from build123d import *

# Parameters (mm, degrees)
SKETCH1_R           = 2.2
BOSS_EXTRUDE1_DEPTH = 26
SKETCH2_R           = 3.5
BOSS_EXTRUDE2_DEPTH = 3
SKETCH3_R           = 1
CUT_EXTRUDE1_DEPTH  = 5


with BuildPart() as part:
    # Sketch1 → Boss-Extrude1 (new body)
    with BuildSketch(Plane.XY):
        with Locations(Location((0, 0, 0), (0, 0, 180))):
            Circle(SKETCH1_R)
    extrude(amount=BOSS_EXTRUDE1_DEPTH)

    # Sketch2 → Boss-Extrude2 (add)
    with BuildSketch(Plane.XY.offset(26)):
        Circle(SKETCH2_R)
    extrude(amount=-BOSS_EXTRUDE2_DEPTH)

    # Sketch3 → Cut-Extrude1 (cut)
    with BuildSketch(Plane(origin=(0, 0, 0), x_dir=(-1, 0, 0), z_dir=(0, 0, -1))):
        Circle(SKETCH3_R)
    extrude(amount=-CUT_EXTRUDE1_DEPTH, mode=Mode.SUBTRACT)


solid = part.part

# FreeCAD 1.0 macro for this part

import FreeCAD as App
import Part
import Sketcher

V = App.Vector
Q = App.Units.Quantity

doc = App.newDocument("Part")
params = doc.addObject("Spreadsheet::Sheet", "Params")
for row, (alias, value) in enumerate([
    ("sketch1_diameter", "4.4 mm"),
    ("pad1_length", "26 mm"),
    ("sketch2_diameter", "7 mm"),
    ("pad2_length", "3 mm"),
    ("sketch3_diameter", "2 mm"),
    ("pocket1_length", "5 mm"),
], start=1):
    params.set(f"A{row}", alias)
    params.set(f"B{row}", "=" + value)
    params.setAlias(f"B{row}", alias)

body = doc.addObject("PartDesign::Body", "Body")

sketch1 = body.newObject("Sketcher::SketchObject", "Sketch")
sketch1.AttachmentSupport = (doc.getObject("XY_Plane"), [""])
sketch1.MapMode = "FlatFace"
sketch1.addGeometry(Part.Circle(V(0, 0, 0), V(0, 0, 1), 2.2), False)
sketch1.addConstraint(Sketcher.Constraint("Coincident", 0, 3, -1, 1))
sketch1.addConstraint(Sketcher.Constraint("Diameter", 0, Q("4.4 mm")))
sketch1.setExpression("Constraints[1]", "Params.sketch1_diameter")
pad1 = body.newObject("PartDesign::Pad", "Pad")
pad1.Profile = sketch1
pad1.setExpression("Length", "Params.pad1_length")

sketch2 = body.newObject("Sketcher::SketchObject", "Sketch001")
sketch2.AttachmentSupport = (doc.getObject("XY_Plane"), [""])
sketch2.MapMode = "FlatFace"
sketch2.AttachmentOffset = App.Placement(V(0, 0, 26), App.Rotation())
sketch2.addGeometry(Part.Circle(V(0, 0, 0), V(0, 0, 1), 3.5), False)
sketch2.addConstraint(Sketcher.Constraint("Coincident", 0, 3, -1, 1))
sketch2.addConstraint(Sketcher.Constraint("Diameter", 0, Q("7 mm")))
sketch2.setExpression("Constraints[1]", "Params.sketch2_diameter")
pad2 = body.newObject("PartDesign::Pad", "Pad001")
pad2.Profile = sketch2
pad2.setExpression("Length", "Params.pad2_length")
pad2.Reversed = True

sketch3 = body.newObject("Sketcher::SketchObject", "Sketch002")
sketch3.AttachmentSupport = (doc.getObject("XY_Plane"), [""])
sketch3.MapMode = "FlatFace"
sketch3.addGeometry(Part.Circle(V(0, 0, 0), V(0, 0, 1), 1), False)
sketch3.addConstraint(Sketcher.Constraint("Coincident", 0, 3, -1, 1))
sketch3.addConstraint(Sketcher.Constraint("Diameter", 0, Q("2 mm")))
sketch3.setExpression("Constraints[1]", "Params.sketch3_diameter")
pocket1 = body.newObject("PartDesign::Pocket", "Pocket")
pocket1.Profile = sketch3
pocket1.setExpression("Length", "Params.pocket1_length")
pocket1.Reversed = True

doc.recompute()
